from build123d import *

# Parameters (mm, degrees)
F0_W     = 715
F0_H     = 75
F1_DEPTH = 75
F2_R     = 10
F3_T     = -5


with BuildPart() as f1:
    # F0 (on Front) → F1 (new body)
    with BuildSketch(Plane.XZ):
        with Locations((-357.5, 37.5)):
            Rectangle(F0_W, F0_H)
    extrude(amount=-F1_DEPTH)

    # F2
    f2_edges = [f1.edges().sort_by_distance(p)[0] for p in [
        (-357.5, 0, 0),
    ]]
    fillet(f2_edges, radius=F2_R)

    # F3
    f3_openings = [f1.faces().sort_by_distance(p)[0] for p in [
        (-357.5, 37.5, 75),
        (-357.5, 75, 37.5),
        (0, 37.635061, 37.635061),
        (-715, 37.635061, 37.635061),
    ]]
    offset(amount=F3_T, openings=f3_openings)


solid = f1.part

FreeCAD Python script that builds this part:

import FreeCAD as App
import Part
import Sketcher
from FreeCAD import Vector


def edges_at(feature, points):
    """Names of the edges that pass closest to the given points."""
    edges = feature.Shape.Edges
    near = lambda p: min(range(len(edges)), key=lambda i: edges[i].distToShape(Part.Vertex(*p))[0])
    return sorted({f"Edge{near(p) + 1}" for p in points})


def faces_at(feature, points):
    """Names of the faces that lie closest to the given points."""
    faces = feature.Shape.Faces
    near = lambda p: min(range(len(faces)), key=lambda i: faces[i].distToShape(Part.Vertex(*p))[0])
    return sorted({f"Face{near(p) + 1}" for p in points})

doc = App.newDocument("Part")
body = doc.addObject("PartDesign::Body", "Body")

# Sketch on XZ plane
sketch1 = body.newObject("Sketcher::SketchObject", "Sketch")
sketch1.AttachmentSupport = (doc.getObject("XZ_Plane"), [""])
sketch1.MapMode = "FlatFace"
sketch1.addGeometry(Part.LineSegment(Vector(-715, 75, 0), Vector(-715, 0, 0)), False)
sketch1.addGeometry(Part.LineSegment(Vector(-715, 0, 0), Vector(0, 0, 0)), False)
sketch1.addGeometry(Part.LineSegment(Vector(0, 0, 0), Vector(0, 75, 0)), False)
sketch1.addGeometry(Part.LineSegment(Vector(0, 75, 0), Vector(-715, 75, 0)), False)
sketch1.addConstraint(Sketcher.Constraint("Coincident", 0, 2, 1, 1))
sketch1.addConstraint(Sketcher.Constraint("Coincident", 1, 2, 2, 1))
sketch1.addConstraint(Sketcher.Constraint("Coincident", 2, 2, 3, 1))
sketch1.addConstraint(Sketcher.Constraint("Coincident", 3, 2, 0, 1))
sketch1.addConstraint(Sketcher.Constraint("Vertical", 0))
sketch1.addConstraint(Sketcher.Constraint("Horizontal", 1))
sketch1.addConstraint(Sketcher.Constraint("Vertical", 2))
sketch1.addConstraint(Sketcher.Constraint("Horizontal", 3))
sketch1.addConstraint(Sketcher.Constraint("Coincident", 1, 2, -1, 1))
sketch1.addConstraint(Sketcher.Constraint("DistanceX", 1, 1, 1, 2, 715.0))
sketch1.addConstraint(Sketcher.Constraint("DistanceY", 0, 2, 0, 1, 75.0))
pad1 = body.newObject("PartDesign::Pad", "Pad")
pad1.Profile = sketch1
pad1.Length = 75
pad1.Reversed = True
doc.recompute()

fillet = body.newObject("PartDesign::Fillet", "Fillet")
fillet.Base = (pad1, edges_at(pad1, [(-357.5, 0, 0)]))
fillet.Radius = 10
doc.recompute()

thickness = body.newObject("PartDesign::Thickness", "Thickness")
thickness.Base = (fillet, faces_at(fillet, [
    (-357.5, 37.5, 75),
    (-357.5, 75, 37.5),
    (0, 37.5, 37.5),
    (-715, 37.5, 37.5),
]))
thickness.Value = 5
thickness.Reversed = True
thickness.Join = "Arc"

doc.recompute()
